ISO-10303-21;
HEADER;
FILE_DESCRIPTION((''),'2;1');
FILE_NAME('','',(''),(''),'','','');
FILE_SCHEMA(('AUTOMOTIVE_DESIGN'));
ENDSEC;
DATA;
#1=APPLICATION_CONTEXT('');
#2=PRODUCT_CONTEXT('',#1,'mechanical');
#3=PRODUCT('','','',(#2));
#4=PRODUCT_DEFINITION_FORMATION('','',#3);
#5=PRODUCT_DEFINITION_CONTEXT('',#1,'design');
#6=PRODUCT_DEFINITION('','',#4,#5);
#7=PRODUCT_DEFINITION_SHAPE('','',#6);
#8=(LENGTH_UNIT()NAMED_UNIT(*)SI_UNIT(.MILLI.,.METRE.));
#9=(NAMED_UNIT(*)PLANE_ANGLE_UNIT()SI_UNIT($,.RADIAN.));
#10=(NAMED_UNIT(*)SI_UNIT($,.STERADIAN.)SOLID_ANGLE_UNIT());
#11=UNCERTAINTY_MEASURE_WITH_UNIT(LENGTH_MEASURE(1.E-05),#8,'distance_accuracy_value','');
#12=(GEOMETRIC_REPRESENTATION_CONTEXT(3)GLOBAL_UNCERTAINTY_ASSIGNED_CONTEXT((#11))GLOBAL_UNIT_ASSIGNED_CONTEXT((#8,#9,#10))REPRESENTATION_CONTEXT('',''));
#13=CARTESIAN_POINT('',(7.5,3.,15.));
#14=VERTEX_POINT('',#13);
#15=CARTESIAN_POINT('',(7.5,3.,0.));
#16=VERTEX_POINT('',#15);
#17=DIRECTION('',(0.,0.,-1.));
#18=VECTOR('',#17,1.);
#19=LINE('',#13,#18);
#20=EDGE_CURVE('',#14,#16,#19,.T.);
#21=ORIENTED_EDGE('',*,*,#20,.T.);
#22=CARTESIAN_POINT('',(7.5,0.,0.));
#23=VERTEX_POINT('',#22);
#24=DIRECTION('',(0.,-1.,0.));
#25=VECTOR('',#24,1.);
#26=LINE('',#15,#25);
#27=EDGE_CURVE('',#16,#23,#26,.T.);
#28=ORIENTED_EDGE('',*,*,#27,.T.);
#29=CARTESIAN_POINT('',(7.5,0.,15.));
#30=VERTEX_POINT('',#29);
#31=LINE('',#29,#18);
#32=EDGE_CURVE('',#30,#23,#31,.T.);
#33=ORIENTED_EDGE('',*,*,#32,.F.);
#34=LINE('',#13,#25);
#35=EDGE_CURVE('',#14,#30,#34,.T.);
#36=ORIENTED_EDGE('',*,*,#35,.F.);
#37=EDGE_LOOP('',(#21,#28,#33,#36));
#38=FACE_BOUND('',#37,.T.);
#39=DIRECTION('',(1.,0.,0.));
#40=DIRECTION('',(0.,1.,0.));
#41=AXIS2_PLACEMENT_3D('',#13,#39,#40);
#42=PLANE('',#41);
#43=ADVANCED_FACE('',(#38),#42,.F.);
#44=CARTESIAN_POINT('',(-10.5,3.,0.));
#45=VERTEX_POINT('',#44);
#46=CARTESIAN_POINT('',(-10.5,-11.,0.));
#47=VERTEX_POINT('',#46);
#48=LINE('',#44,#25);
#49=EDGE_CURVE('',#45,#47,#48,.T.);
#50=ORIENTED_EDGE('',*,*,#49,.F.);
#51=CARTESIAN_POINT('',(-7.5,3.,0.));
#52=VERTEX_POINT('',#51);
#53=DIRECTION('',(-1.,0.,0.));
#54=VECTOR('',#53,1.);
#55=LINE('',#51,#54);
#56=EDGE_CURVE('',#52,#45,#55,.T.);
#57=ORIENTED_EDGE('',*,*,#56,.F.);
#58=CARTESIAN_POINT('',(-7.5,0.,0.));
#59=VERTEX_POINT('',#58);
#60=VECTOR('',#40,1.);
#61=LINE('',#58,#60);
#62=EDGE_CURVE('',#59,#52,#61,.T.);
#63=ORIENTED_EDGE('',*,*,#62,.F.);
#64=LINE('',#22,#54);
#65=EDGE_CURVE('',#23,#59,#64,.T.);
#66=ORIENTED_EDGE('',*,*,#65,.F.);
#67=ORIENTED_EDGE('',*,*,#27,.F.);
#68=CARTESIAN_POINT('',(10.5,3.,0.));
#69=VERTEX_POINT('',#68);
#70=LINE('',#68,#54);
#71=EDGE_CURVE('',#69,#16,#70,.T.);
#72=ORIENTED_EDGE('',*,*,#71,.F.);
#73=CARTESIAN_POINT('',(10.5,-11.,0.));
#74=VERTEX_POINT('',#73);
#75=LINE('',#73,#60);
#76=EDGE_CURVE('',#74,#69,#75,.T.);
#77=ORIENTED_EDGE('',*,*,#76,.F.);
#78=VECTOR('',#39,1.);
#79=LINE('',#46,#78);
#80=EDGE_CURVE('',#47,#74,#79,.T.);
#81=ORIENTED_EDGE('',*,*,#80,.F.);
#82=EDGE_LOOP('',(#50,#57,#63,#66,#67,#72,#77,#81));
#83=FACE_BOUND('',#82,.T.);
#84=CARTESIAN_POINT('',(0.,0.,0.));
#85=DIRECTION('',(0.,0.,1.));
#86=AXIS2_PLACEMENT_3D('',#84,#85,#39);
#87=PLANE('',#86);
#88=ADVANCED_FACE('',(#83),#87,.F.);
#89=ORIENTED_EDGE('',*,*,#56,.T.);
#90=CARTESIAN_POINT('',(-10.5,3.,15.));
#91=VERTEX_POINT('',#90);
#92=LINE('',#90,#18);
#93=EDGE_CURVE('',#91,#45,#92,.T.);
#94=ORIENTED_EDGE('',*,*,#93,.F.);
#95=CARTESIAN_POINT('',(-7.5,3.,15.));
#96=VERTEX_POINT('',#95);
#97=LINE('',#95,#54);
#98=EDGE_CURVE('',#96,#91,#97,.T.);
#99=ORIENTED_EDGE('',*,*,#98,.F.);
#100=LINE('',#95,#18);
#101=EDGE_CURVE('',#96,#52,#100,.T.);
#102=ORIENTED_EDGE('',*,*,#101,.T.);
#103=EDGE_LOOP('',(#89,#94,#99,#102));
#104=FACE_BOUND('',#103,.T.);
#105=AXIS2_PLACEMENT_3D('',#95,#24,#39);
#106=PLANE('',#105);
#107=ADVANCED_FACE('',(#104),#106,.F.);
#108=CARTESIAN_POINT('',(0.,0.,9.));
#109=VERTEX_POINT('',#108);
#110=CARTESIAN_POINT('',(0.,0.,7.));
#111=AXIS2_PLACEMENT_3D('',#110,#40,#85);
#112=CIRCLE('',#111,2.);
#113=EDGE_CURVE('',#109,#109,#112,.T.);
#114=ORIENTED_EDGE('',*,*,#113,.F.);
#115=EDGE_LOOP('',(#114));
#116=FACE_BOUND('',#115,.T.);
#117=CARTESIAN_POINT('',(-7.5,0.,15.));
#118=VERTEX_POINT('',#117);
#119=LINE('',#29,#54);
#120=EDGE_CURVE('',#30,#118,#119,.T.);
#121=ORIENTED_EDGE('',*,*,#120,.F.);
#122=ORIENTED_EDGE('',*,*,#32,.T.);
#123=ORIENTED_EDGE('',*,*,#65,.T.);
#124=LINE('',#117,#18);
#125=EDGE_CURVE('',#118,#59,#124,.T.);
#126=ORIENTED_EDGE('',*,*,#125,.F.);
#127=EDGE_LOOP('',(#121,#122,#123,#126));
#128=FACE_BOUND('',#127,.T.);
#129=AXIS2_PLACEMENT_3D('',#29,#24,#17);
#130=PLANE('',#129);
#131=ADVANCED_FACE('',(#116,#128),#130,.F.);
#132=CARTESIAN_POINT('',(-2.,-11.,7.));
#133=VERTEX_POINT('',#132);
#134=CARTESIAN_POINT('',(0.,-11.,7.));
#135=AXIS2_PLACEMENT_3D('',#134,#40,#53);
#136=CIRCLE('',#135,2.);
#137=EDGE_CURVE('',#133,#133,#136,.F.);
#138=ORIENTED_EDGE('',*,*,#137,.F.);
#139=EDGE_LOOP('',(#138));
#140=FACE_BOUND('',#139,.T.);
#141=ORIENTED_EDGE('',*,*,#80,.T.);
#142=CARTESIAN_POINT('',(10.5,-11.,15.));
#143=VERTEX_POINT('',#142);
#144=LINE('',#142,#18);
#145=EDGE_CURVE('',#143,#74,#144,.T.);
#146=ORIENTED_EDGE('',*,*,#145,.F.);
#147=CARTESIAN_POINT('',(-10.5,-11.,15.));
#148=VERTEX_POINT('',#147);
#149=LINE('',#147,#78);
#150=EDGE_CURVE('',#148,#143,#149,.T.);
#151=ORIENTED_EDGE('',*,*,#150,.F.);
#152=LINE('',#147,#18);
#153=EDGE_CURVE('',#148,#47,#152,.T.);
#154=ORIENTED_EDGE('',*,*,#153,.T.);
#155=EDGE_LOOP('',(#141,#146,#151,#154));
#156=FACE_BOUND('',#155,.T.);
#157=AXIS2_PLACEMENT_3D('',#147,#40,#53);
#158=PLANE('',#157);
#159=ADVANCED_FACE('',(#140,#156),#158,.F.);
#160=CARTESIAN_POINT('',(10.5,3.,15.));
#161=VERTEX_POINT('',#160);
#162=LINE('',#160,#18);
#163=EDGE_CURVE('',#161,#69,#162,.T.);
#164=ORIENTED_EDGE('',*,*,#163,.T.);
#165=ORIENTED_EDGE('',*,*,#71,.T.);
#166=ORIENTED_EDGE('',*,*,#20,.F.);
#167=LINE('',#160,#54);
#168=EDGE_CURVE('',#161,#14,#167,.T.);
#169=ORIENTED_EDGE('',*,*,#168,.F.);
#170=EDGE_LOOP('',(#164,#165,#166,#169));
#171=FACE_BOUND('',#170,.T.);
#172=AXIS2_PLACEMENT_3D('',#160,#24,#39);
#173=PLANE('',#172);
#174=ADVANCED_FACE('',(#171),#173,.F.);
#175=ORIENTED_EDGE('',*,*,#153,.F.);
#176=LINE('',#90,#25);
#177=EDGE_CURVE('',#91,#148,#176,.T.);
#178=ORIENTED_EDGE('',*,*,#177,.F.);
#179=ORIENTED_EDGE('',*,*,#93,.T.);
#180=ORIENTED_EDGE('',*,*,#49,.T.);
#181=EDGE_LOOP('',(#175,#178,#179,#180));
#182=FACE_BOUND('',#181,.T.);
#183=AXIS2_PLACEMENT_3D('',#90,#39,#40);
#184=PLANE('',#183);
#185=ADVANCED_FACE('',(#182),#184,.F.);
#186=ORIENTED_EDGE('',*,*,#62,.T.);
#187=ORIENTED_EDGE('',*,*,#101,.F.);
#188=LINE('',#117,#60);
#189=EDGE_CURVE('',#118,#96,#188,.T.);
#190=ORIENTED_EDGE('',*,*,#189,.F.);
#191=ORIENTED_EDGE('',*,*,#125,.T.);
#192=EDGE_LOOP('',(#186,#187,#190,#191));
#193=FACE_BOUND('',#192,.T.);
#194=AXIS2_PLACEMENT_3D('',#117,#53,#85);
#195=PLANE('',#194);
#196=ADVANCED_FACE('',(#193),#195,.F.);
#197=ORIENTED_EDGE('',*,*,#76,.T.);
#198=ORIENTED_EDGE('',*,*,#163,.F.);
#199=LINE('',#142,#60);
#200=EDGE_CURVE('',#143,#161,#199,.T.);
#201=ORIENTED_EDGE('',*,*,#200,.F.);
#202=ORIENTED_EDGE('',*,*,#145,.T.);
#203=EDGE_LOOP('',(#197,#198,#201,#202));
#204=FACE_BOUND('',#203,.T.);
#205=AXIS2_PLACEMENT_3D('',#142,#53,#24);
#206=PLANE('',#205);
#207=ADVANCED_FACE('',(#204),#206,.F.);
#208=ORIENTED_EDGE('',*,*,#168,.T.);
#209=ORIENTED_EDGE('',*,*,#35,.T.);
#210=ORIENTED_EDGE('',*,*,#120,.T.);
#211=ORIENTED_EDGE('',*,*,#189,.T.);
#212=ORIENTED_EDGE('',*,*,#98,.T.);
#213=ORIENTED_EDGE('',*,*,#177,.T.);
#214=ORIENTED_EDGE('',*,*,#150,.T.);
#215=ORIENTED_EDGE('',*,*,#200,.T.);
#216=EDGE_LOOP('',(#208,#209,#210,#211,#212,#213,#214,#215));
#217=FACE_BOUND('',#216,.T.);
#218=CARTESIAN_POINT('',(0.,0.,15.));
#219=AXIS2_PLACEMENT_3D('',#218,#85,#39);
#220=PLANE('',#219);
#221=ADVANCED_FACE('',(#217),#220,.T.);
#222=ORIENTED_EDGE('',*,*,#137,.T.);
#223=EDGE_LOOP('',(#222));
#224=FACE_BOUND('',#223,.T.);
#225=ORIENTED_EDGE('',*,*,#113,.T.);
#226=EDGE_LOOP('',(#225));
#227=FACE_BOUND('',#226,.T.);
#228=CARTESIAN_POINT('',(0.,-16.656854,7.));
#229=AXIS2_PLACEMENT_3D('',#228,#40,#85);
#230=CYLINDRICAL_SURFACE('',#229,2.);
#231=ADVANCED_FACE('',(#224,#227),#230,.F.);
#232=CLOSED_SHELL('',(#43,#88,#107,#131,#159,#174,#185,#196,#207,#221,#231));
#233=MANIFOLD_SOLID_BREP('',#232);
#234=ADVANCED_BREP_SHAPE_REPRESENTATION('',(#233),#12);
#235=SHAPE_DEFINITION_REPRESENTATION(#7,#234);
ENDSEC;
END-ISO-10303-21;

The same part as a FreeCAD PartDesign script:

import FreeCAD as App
import Part
import Sketcher

V = App.Vector
Q = App.Units.Quantity


def add_polygon(sketch, points):
    """Adds a closed chain of lines whose ends are joined by coincident constraints."""
    first, n = sketch.GeometryCount, len(points)
    for a, b in zip(points, points[1:] + points[:1]):
        sketch.addGeometry(Part.LineSegment(App.Vector(*a, 0), App.Vector(*b, 0)), False)
    for i in range(n):
        sketch.addConstraint(Sketcher.Constraint("Coincident", first + i, 2, first + (i + 1) % n, 1))

doc = App.newDocument("Part")
body = doc.addObject("PartDesign::Body", "Body")

sketch1 = body.newObject("Sketcher::SketchObject", "Sketch")
sketch1.AttachmentSupport = (doc.getObject("XY_Plane"), [""])
sketch1.MapMode = "FlatFace"
add_polygon(sketch1, [(7.5, 0), (-7.5, 0), (-7.5, 3), (-10.5, 3), (-10.5, -11), (10.5, -11), (10.5, 3), (7.5, 3)])
sketch1.addConstraint([
    Sketcher.Constraint("Horizontal", 0),
    Sketcher.Constraint("Vertical", 1),
    Sketcher.Constraint("Horizontal", 2),
    Sketcher.Constraint("Vertical", 3),
    Sketcher.Constraint("Horizontal", 4),
    Sketcher.Constraint("Vertical", 5),
    Sketcher.Constraint("Horizontal", 6),
    Sketcher.Constraint("Vertical", 7),
    Sketcher.Constraint("Symmetric", 0, 2, 7, 2, -1, 1),
    Sketcher.Constraint("Symmetric", 2, 2, 5, 2, -2),
    Sketcher.Constraint("Equal", 6, 1),
    Sketcher.Constraint("DistanceX", 0, 2, 0, 1, Q("15 mm")),
    Sketcher.Constraint("DistanceX", 2, 2, 2, 1, Q("3 mm")),
    Sketcher.Constraint("DistanceY", 3, 2, 3, 1, Q("14 mm")),
])
pad1 = body.newObject("PartDesign::Pad", "Pad")
pad1.Profile = sketch1
pad1.Length = 15

sketch2 = body.newObject("Sketcher::SketchObject", "Sketch001")
sketch2.AttachmentSupport = (doc.getObject("XZ_Plane"), [""])
sketch2.MapMode = "FlatFace"
sketch2.addGeometry(Part.Circle(V(0, 7, 0), V(0, 0, 1), 2), False)
sketch2.addConstraint([
    Sketcher.Constraint("PointOnObject", 0, 3, -2),
    Sketcher.Constraint("Diameter", 0, Q("4 mm")),
    Sketcher.Constraint("DistanceY", -1, 1, 0, 3, Q("7 mm")),
])
pocket1 = body.newObject("PartDesign::Pocket", "Pocket")
pocket1.Profile = sketch2
pocket1.Length = 11
pocket1.Reversed = True

doc.recompute()
